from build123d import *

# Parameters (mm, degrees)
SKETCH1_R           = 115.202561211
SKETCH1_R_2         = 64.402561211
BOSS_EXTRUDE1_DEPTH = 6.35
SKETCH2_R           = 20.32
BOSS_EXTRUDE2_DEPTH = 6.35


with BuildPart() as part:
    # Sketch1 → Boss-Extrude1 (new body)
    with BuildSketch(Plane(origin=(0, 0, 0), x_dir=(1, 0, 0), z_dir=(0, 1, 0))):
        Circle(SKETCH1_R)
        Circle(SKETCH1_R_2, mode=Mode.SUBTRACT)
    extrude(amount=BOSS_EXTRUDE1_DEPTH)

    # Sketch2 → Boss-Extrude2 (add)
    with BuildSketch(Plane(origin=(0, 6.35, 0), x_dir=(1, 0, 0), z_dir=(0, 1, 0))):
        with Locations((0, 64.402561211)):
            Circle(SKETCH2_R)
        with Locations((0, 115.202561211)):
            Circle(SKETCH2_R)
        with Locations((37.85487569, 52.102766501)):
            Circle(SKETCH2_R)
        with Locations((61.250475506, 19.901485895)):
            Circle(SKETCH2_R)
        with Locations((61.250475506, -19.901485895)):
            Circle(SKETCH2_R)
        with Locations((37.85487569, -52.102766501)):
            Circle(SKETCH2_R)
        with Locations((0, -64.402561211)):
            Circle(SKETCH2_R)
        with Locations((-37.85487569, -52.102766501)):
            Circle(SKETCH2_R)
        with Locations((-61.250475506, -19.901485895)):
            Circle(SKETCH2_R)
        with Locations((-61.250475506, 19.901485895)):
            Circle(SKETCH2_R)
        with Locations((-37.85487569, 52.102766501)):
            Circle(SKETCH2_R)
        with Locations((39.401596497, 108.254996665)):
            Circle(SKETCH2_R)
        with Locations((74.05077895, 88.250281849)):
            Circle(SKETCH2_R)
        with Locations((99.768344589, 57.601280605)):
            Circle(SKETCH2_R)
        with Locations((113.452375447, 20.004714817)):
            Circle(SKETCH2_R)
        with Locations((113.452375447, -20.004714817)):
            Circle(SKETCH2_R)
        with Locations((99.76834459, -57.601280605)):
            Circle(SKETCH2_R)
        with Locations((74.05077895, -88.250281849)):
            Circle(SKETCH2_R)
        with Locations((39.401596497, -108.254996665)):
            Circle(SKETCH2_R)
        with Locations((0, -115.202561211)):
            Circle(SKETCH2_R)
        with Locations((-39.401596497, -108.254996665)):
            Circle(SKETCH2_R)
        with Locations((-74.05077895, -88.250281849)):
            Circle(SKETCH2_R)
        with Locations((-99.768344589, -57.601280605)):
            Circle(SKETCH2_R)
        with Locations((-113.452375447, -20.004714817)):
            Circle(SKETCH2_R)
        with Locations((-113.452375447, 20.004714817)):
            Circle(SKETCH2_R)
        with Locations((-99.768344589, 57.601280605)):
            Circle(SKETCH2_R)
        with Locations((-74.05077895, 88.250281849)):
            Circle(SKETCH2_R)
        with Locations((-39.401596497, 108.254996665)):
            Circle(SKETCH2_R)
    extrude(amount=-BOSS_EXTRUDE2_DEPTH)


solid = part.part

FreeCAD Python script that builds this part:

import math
import FreeCAD as App
import Part
import Sketcher

V = App.Vector
Q = App.Units.Quantity

doc = App.newDocument("Part")
body = doc.addObject("PartDesign::Body", "Body")

# Sketch on XZ plane
sketch1 = body.newObject("Sketcher::SketchObject", "Sketch")
sketch1.AttachmentSupport = (doc.getObject("XZ_Plane"), [""])
sketch1.MapMode = "FlatFace"
sketch1.addGeometry([
    Part.Circle(V(0, 0, 0), V(0, 0, 1), 115),
    Part.Circle(V(0, 0, 0), V(0, 0, 1), 64),
], False)
sketch1.addConstraint([
    Sketcher.Constraint("Coincident", 0, 3, -1, 1),
    Sketcher.Constraint("Coincident", 1, 3, -1, 1),
    Sketcher.Constraint("Diameter", 0, 230.405122),
    Sketcher.Constraint("Diameter", 1, 128.805122),
])
pad1 = body.newObject("PartDesign::Pad", "Pad")
pad1.Profile = sketch1
pad1.Length = Q("0.25 in")
pad1.Reversed = True

# Sketch on XZ plane
sketch2 = body.newObject("Sketcher::SketchObject", "Sketch001")
sketch2.AttachmentSupport = (doc.getObject("XZ_Plane"), [""])
sketch2.MapMode = "FlatFace"
sketch2.AttachmentOffset = App.Placement(V(0, 0, -0.25 * 25.4), App.Rotation())
sketch2.addGeometry([
    Part.ArcOfCircle(Part.Circle(V(-61, -20, 0), V(0, 0, 1), 20), math.radians(102), math.radians(294)),  # 0
    Part.ArcOfCircle(Part.Circle(V(-61, 20, 0), V(0, 0, 1), 20), math.radians(66), math.radians(258)),  # 1
    Part.ArcOfCircle(Part.Circle(V(-38, 52, 0), V(0, 0, 1), 20), math.radians(30), math.radians(222)),  # 2
    Part.ArcOfCircle(Part.Circle(V(0, 64, 0), V(0, 0, 1), 20), math.radians(-6), math.radians(186)),  # 3
    Part.ArcOfCircle(Part.Circle(V(38, 52, 0), V(0, 0, 1), 20), math.radians(-42), math.radians(150)),  # 4
    Part.ArcOfCircle(Part.Circle(V(61, 20, 0), V(0, 0, 1), 20), math.radians(-78), math.radians(114)),  # 5
    Part.ArcOfCircle(Part.Circle(V(61, -20, 0), V(0, 0, 1), 20), math.radians(-114), math.radians(78)),  # 6
    Part.ArcOfCircle(Part.Circle(V(38, -52, 0), V(0, 0, 1), 20), math.radians(-150), math.radians(42)),  # 7
    Part.ArcOfCircle(Part.Circle(V(0, -64, 0), V(0, 0, 1), 20), math.radians(174), math.radians(366)),  # 8
    Part.ArcOfCircle(Part.Circle(V(-38, -52, 0), V(0, 0, 1), 20), math.radians(138), math.radians(330)),  # 9
    Part.ArcOfCircle(Part.Circle(V(-61, -20, 0), V(0, 0, 1), 20), math.radians(-42), math.radians(78)),  # 10
    Part.ArcOfCircle(Part.Circle(V(-38, -52, 0), V(0, 0, 1), 20), math.radians(-6), math.radians(114)),  # 11
    Part.ArcOfCircle(Part.Circle(V(0, -64, 0), V(0, 0, 1), 20), math.radians(30), math.radians(150)),  # 12
    Part.ArcOfCircle(Part.Circle(V(38, -52, 0), V(0, 0, 1), 20), math.radians(66), math.radians(186)),  # 13
    Part.ArcOfCircle(Part.Circle(V(61, -20, 0), V(0, 0, 1), 20), math.radians(102), math.radians(222)),  # 14
    Part.ArcOfCircle(Part.Circle(V(61, 20, 0), V(0, 0, 1), 20), math.radians(138), math.radians(258)),  # 15
    Part.ArcOfCircle(Part.Circle(V(38, 52, 0), V(0, 0, 1), 20), math.radians(174), math.radians(294)),  # 16
    Part.ArcOfCircle(Part.Circle(V(0, 64, 0), V(0, 0, 1), 20), math.radians(-150), math.radians(-30)),  # 17
    Part.ArcOfCircle(Part.Circle(V(-38, 52, 0), V(0, 0, 1), 20), math.radians(-114), math.radians(6)),  # 18
    Part.ArcOfCircle(Part.Circle(V(-61, 20, 0), V(0, 0, 1), 20), math.radians(-78), math.radians(42)),  # 19
    Part.ArcOfCircle(Part.Circle(V(-100, -58, 0), V(0, 0, 1), 20), math.radians(120), math.radians(300)),  # 20
    Part.ArcOfCircle(Part.Circle(V(-113, -20, 0), V(0, 0, 1), 20), math.radians(100), math.radians(280)),  # 21
    Part.ArcOfCircle(Part.Circle(V(-113, 20, 0), V(0, 0, 1), 20), math.radians(80), math.radians(260)),  # 22
    Part.ArcOfCircle(Part.Circle(V(-100, 58, 0), V(0, 0, 1), 20), math.radians(60), math.radians(240)),  # 23
    Part.ArcOfCircle(Part.Circle(V(-74, 88, 0), V(0, 0, 1), 20), math.radians(40), math.radians(220)),  # 24
    Part.ArcOfCircle(Part.Circle(V(-39, 108, 0), V(0, 0, 1), 20), math.radians(20), math.radians(200)),  # 25
    Part.ArcOfCircle(Part.Circle(V(0, 115, 0), V(0, 0, 1), 20), math.radians(0), math.radians(180)),  # 26
    Part.ArcOfCircle(Part.Circle(V(39, 108, 0), V(0, 0, 1), 20), math.radians(-20), math.radians(160)),  # 27
    Part.ArcOfCircle(Part.Circle(V(74, 88, 0), V(0, 0, 1), 20), math.radians(-40), math.radians(140)),  # 28
    Part.ArcOfCircle(Part.Circle(V(100, 58, 0), V(0, 0, 1), 20), math.radians(-60), math.radians(120)),  # 29
    Part.ArcOfCircle(Part.Circle(V(113, 20, 0), V(0, 0, 1), 20), math.radians(-80), math.radians(100)),  # 30
    Part.ArcOfCircle(Part.Circle(V(113, -20, 0), V(0, 0, 1), 20), math.radians(-100), math.radians(80)),  # 31
    Part.ArcOfCircle(Part.Circle(V(100, -58, 0), V(0, 0, 1), 20), math.radians(-120), math.radians(60)),  # 32
    Part.ArcOfCircle(Part.Circle(V(74, -88, 0), V(0, 0, 1), 20), math.radians(-140), math.radians(40)),  # 33
    Part.ArcOfCircle(Part.Circle(V(39, -108, 0), V(0, 0, 1), 20), math.radians(-160), math.radians(20)),  # 34
    Part.ArcOfCircle(Part.Circle(V(0, -115, 0), V(0, 0, 1), 20), math.radians(-180), math.radians(0)),  # 35
    Part.ArcOfCircle(Part.Circle(V(-39, -108, 0), V(0, 0, 1), 20), math.radians(160), math.radians(340)),  # 36
    Part.ArcOfCircle(Part.Circle(V(-74, -88, 0), V(0, 0, 1), 20), math.radians(140), math.radians(320)),  # 37
    Part.ArcOfCircle(Part.Circle(V(-74, -88, 0), V(0, 0, 1), 20), math.radians(-20), math.radians(120)),  # 38
    Part.ArcOfCircle(Part.Circle(V(-39, -108, 0), V(0, 0, 1), 20), math.radians(0), math.radians(140)),  # 39
    Part.ArcOfCircle(Part.Circle(V(0, -115, 0), V(0, 0, 1), 20), math.radians(20), math.radians(160)),  # 40
    Part.ArcOfCircle(Part.Circle(V(39, -108, 0), V(0, 0, 1), 20), math.radians(40), math.radians(180)),  # 41
    Part.ArcOfCircle(Part.Circle(V(74, -88, 0), V(0, 0, 1), 20), math.radians(60), math.radians(200)),  # 42
    Part.ArcOfCircle(Part.Circle(V(100, -58, 0), V(0, 0, 1), 20), math.radians(80), math.radians(220)),  # 43
    Part.ArcOfCircle(Part.Circle(V(113, -20, 0), V(0, 0, 1), 20), math.radians(100), math.radians(240)),  # 44
    Part.ArcOfCircle(Part.Circle(V(113, 20, 0), V(0, 0, 1), 20), math.radians(120), math.radians(260)),  # 45
    Part.ArcOfCircle(Part.Circle(V(100, 58, 0), V(0, 0, 1), 20), math.radians(140), math.radians(280)),  # 46
    Part.ArcOfCircle(Part.Circle(V(74, 88, 0), V(0, 0, 1), 20), math.radians(160), math.radians(300)),  # 47
    Part.ArcOfCircle(Part.Circle(V(39, 108, 0), V(0, 0, 1), 20), math.radians(-180), math.radians(-40)),  # 48
    Part.ArcOfCircle(Part.Circle(V(0, 115, 0), V(0, 0, 1), 20), math.radians(-160), math.radians(-20)),  # 49
    Part.ArcOfCircle(Part.Circle(V(-39, 108, 0), V(0, 0, 1), 20), math.radians(-140), math.radians(0)),  # 50
    Part.ArcOfCircle(Part.Circle(V(-74, 88, 0), V(0, 0, 1), 20), math.radians(-120), math.radians(20)),  # 51
    Part.ArcOfCircle(Part.Circle(V(-100, 58, 0), V(0, 0, 1), 20), math.radians(-100), math.radians(40)),  # 52
    Part.ArcOfCircle(Part.Circle(V(-113, 20, 0), V(0, 0, 1), 20), math.radians(-80), math.radians(60)),  # 53
    Part.ArcOfCircle(Part.Circle(V(-113, -20, 0), V(0, 0, 1), 20), math.radians(-60), math.radians(80)),  # 54
    Part.ArcOfCircle(Part.Circle(V(-100, -58, 0), V(0, 0, 1), 20), math.radians(-40), math.radians(100)),  # 55
], False)
sketch2.addConstraint([
    Sketcher.Constraint("Coincident", 0, 1, 1, 2),
    Sketcher.Constraint("Coincident", 1, 1, 2, 2),
    Sketcher.Constraint("Coincident", 2, 1, 3, 2),
    Sketcher.Constraint("Coincident", 3, 1, 4, 2),
    Sketcher.Constraint("Coincident", 4, 1, 5, 2),
    Sketcher.Constraint("Coincident", 5, 1, 6, 2),
    Sketcher.Constraint("Coincident", 6, 1, 7, 2),
    Sketcher.Constraint("Coincident", 7, 1, 8, 2),
    Sketcher.Constraint("Coincident", 8, 1, 9, 2),
    Sketcher.Constraint("Coincident", 9, 1, 0, 2),
    Sketcher.Constraint("Coincident", 10, 1, 11, 2),
    Sketcher.Constraint("Coincident", 11, 1, 12, 2),
    Sketcher.Constraint("Coincident", 12, 1, 13, 2),
    Sketcher.Constraint("Coincident", 13, 1, 14, 2),
    Sketcher.Constraint("Coincident", 14, 1, 15, 2),
    Sketcher.Constraint("Coincident", 15, 1, 16, 2),
    Sketcher.Constraint("Coincident", 16, 1, 17, 2),
    Sketcher.Constraint("Coincident", 17, 1, 18, 2),
    Sketcher.Constraint("Coincident", 18, 1, 19, 2),
    Sketcher.Constraint("Coincident", 19, 1, 10, 2),
    Sketcher.Constraint("Coincident", 20, 1, 21, 2),
    Sketcher.Constraint("Coincident", 21, 1, 22, 2),
    Sketcher.Constraint("Coincident", 22, 1, 23, 2),
    Sketcher.Constraint("Coincident", 23, 1, 24, 2),
    Sketcher.Constraint("Coincident", 24, 1, 25, 2),
    Sketcher.Constraint("Coincident", 25, 1, 26, 2),
    Sketcher.Constraint("Coincident", 26, 1, 27, 2),
    Sketcher.Constraint("Coincident", 27, 1, 28, 2),
    Sketcher.Constraint("Coincident", 28, 1, 29, 2),
    Sketcher.Constraint("Coincident", 29, 1, 30, 2),
    Sketcher.Constraint("Coincident", 30, 1, 31, 2),
    Sketcher.Constraint("Coincident", 31, 1, 32, 2),
    Sketcher.Constraint("Coincident", 32, 1, 33, 2),
    Sketcher.Constraint("Coincident", 33, 1, 34, 2),
    Sketcher.Constraint("Coincident", 34, 1, 35, 2),
    Sketcher.Constraint("Coincident", 35, 1, 36, 2),
    Sketcher.Constraint("Coincident", 36, 1, 37, 2),
    Sketcher.Constraint("Coincident", 37, 1, 20, 2),
    Sketcher.Constraint("Coincident", 38, 1, 39, 2),
    Sketcher.Constraint("Coincident", 39, 1, 40, 2),
    Sketcher.Constraint("Coincident", 40, 1, 41, 2),
    Sketcher.Constraint("Coincident", 41, 1, 42, 2),
    Sketcher.Constraint("Coincident", 42, 1, 43, 2),
    Sketcher.Constraint("Coincident", 43, 1, 44, 2),
    Sketcher.Constraint("Coincident", 44, 1, 45, 2),
    Sketcher.Constraint("Coincident", 45, 1, 46, 2),
    Sketcher.Constraint("Coincident", 46, 1, 47, 2),
    Sketcher.Constraint("Coincident", 47, 1, 48, 2),
    Sketcher.Constraint("Coincident", 48, 1, 49, 2),
    Sketcher.Constraint("Coincident", 49, 1, 50, 2),
    Sketcher.Constraint("Coincident", 50, 1, 51, 2),
    Sketcher.Constraint("Coincident", 51, 1, 52, 2),
    Sketcher.Constraint("Coincident", 52, 1, 53, 2),
    Sketcher.Constraint("Coincident", 53, 1, 54, 2),
    Sketcher.Constraint("Coincident", 54, 1, 55, 2),
    Sketcher.Constraint("Coincident", 55, 1, 38, 2),
    Sketcher.Constraint("Coincident", 10, 3, 0, 3),
    Sketcher.Constraint("Coincident", 11, 3, 9, 3),
    Sketcher.Constraint("Coincident", 12, 3, 8, 3),
    Sketcher.Constraint("Coincident", 13, 3, 7, 3),
    Sketcher.Constraint("Coincident", 14, 3, 6, 3),
    Sketcher.Constraint("Coincident", 15, 3, 5, 3),
    Sketcher.Constraint("Coincident", 16, 3, 4, 3),
    Sketcher.Constraint("Coincident", 17, 3, 3, 3),
    Sketcher.Constraint("Coincident", 18, 3, 2, 3),
    Sketcher.Constraint("Coincident", 19, 3, 1, 3),
    Sketcher.Constraint("Coincident", 38, 3, 37, 3),
    Sketcher.Constraint("Coincident", 39, 3, 36, 3),
    Sketcher.Constraint("Coincident", 40, 3, 35, 3),
    Sketcher.Constraint("Coincident", 41, 3, 34, 3),
    Sketcher.Constraint("Coincident", 42, 3, 33, 3),
    Sketcher.Constraint("Coincident", 43, 3, 32, 3),
    Sketcher.Constraint("Coincident", 44, 3, 31, 3),
    Sketcher.Constraint("Coincident", 45, 3, 30, 3),
    Sketcher.Constraint("Coincident", 46, 3, 29, 3),
    Sketcher.Constraint("Coincident", 47, 3, 28, 3),
    Sketcher.Constraint("Coincident", 48, 3, 27, 3),
    Sketcher.Constraint("Coincident", 49, 3, 26, 3),
    Sketcher.Constraint("Coincident", 50, 3, 25, 3),
    Sketcher.Constraint("Coincident", 51, 3, 24, 3),
    Sketcher.Constraint("Coincident", 52, 3, 23, 3),
    Sketcher.Constraint("Coincident", 53, 3, 22, 3),
    Sketcher.Constraint("Coincident", 54, 3, 21, 3),
    Sketcher.Constraint("Coincident", 55, 3, 20, 3),
    Sketcher.Constraint("Equal", 0, 1),
    Sketcher.Constraint("Equal", 1, 2),
    Sketcher.Constraint("Equal", 2, 3),
    Sketcher.Constraint("Equal", 3, 4),
    Sketcher.Constraint("Equal", 4, 5),
    Sketcher.Constraint("Equal", 5, 6),
    Sketcher.Constraint("Equal", 6, 7),
    Sketcher.Constraint("Equal", 7, 8),
    Sketcher.Constraint("Equal", 8, 9),
    Sketcher.Constraint("Equal", 9, 10),
    Sketcher.Constraint("Equal", 10, 11),
    Sketcher.Constraint("Equal", 11, 12),
    Sketcher.Constraint("Equal", 12, 13),
    Sketcher.Constraint("Equal", 13, 14),
    Sketcher.Constraint("Equal", 14, 15),
    Sketcher.Constraint("Equal", 15, 16),
    Sketcher.Constraint("Equal", 16, 17),
    Sketcher.Constraint("Equal", 17, 18),
    Sketcher.Constraint("Equal", 18, 19),
    Sketcher.Constraint("Equal", 19, 20),
    Sketcher.Constraint("Equal", 20, 21),
    Sketcher.Constraint("Equal", 21, 22),
    Sketcher.Constraint("Equal", 22, 23),
    Sketcher.Constraint("Equal", 23, 24),
    Sketcher.Constraint("Equal", 24, 25),
    Sketcher.Constraint("Equal", 25, 26),
    Sketcher.Constraint("Equal", 26, 27),
    Sketcher.Constraint("Equal", 27, 28),
    Sketcher.Constraint("Equal", 28, 29),
    Sketcher.Constraint("Equal", 29, 30),
    Sketcher.Constraint("Equal", 30, 31),
    Sketcher.Constraint("Equal", 31, 32),
    Sketcher.Constraint("Equal", 32, 33),
    Sketcher.Constraint("Equal", 33, 34),
    Sketcher.Constraint("Equal", 34, 35),
    Sketcher.Constraint("Equal", 35, 36),
    Sketcher.Constraint("Equal", 36, 37),
    Sketcher.Constraint("Equal", 37, 38),
    Sketcher.Constraint("Equal", 38, 39),
    Sketcher.Constraint("Equal", 39, 40),
    Sketcher.Constraint("Equal", 40, 41),
    Sketcher.Constraint("Equal", 41, 42),
    Sketcher.Constraint("Equal", 42, 43),
    Sketcher.Constraint("Equal", 43, 44),
    Sketcher.Constraint("Equal", 44, 45),
    Sketcher.Constraint("Equal", 45, 46),
    Sketcher.Constraint("Equal", 46, 47),
    Sketcher.Constraint("Equal", 47, 48),
    Sketcher.Constraint("Equal", 48, 49),
    Sketcher.Constraint("Equal", 49, 50),
    Sketcher.Constraint("Equal", 50, 51),
    Sketcher.Constraint("Equal", 51, 52),
    Sketcher.Constraint("Equal", 52, 53),
    Sketcher.Constraint("Equal", 53, 54),
    Sketcher.Constraint("Equal", 54, 55),
    Sketcher.Constraint("Symmetric", 0, 3, 5, 3, -1, 1),
    Sketcher.Constraint("Symmetric", 1, 3, 6, 3, -1, 1),
    Sketcher.Constraint("Symmetric", 2, 3, 7, 3, -1, 1),
    Sketcher.Constraint("Symmetric", 3, 3, 8, 3, -1, 1),
    Sketcher.Constraint("Symmetric", 4, 3, 9, 3, -1, 1),
    Sketcher.Constraint("Symmetric", 20, 3, 29, 3, -1, 1),
    Sketcher.Constraint("Symmetric", 21, 3, 30, 3, -1, 1),
    Sketcher.Constraint("Symmetric", 22, 3, 31, 3, -1, 1),
    Sketcher.Constraint("Symmetric", 23, 3, 32, 3, -1, 1),
    Sketcher.Constraint("Symmetric", 24, 3, 33, 3, -1, 1),
    Sketcher.Constraint("Symmetric", 25, 3, 34, 3, -1, 1),
    Sketcher.Constraint("Symmetric", 26, 3, 35, 3, -1, 1),
    Sketcher.Constraint("Symmetric", 27, 3, 36, 3, -1, 1),
    Sketcher.Constraint("Symmetric", 28, 3, 37, 3, -1, 1),
    Sketcher.Constraint("Symmetric", 2, 3, 4, 3, -2),
    Sketcher.Constraint("Symmetric", 1, 3, 5, 3, -2),
    Sketcher.Constraint("Symmetric", 25, 3, 27, 3, -2),
    Sketcher.Constraint("Symmetric", 24, 3, 28, 3, -2),
    Sketcher.Constraint("Symmetric", 23, 3, 29, 3, -2),
    Sketcher.Constraint("Symmetric", 22, 3, 30, 3, -2),
    Sketcher.Constraint("PointOnObject", 3, 3, -2),
    Sketcher.Constraint("PointOnObject", 26, 3, -2),
    Sketcher.Constraint("Radius", 0, Q("0.8 in")),
    Sketcher.Constraint("DistanceX", 23, 1, -1, 1, 89.641),
    Sketcher.Constraint("DistanceY", -1, 1, 3, 3, 64.402561),
    Sketcher.Constraint("DistanceY", 20, 3, -1, 1, 57.601281),
    Sketcher.Constraint("DistanceX", 24, 3, -1, 1, 74.050779),
    Sketcher.Constraint("DistanceY", -1, 1, 24, 3, 88.250282),
    Sketcher.Constraint("DistanceY", -1, 1, 26, 3, 115.202561),
    Sketcher.Constraint("DistanceX", 0, 1, -1, 1, 65.353311),
    Sketcher.Constraint("DistanceX", 1, 1, -1, 1, 52.871939),
    Sketcher.Constraint("DistanceX", 10, 1, -1, 1, 46.233412),
    Sketcher.Constraint("DistanceY", 10, 1, -1, 1, 33.59054),
    Sketcher.Constraint("DistanceY", 20, 1, -1, 1, 40.022518),
    Sketcher.Constraint("DistanceY", -1, 1, 25, 1, 115.240248),
    Sketcher.Constraint("DistanceX", 39, 1, -1, 1, 19.081631),
    Sketcher.Constraint("DistanceX", 21, 3, -1, 1, 113.452375),
])
pad2 = body.newObject("PartDesign::Pad", "Pad001")
pad2.Profile = sketch2
pad2.Length = Q("0.25 in")

doc.recompute()
